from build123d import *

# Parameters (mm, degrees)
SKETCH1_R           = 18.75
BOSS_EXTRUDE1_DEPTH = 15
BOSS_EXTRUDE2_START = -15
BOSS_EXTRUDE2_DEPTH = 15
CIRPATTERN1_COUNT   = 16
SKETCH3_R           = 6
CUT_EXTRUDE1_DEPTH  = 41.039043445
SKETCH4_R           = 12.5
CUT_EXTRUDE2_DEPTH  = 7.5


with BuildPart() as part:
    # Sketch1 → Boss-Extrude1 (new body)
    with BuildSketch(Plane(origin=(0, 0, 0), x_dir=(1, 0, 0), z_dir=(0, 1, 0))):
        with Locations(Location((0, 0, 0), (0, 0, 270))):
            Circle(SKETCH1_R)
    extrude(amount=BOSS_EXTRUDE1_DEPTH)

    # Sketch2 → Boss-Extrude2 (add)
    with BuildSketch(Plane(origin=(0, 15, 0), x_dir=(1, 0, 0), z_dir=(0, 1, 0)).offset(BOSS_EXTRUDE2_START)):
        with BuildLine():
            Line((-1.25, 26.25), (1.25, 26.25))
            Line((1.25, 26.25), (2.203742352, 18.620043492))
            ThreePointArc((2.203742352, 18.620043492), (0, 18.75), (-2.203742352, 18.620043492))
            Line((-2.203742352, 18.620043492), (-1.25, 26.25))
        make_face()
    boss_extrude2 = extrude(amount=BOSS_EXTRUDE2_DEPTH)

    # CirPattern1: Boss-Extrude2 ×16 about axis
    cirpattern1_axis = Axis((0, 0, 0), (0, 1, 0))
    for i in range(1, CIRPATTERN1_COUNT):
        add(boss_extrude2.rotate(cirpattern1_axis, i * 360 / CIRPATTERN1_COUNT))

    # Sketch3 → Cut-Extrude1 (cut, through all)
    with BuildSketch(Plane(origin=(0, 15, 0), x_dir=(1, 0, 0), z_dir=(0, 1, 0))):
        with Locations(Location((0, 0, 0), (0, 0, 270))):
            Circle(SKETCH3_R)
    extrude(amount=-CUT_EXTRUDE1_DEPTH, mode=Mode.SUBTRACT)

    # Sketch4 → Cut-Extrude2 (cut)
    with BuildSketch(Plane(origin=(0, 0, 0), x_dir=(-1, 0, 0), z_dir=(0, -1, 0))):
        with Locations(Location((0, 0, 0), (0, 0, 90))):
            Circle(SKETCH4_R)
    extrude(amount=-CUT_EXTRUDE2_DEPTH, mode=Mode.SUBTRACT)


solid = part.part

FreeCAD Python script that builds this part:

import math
import FreeCAD as App
import Part
import Sketcher

doc = App.newDocument("Part")
body = doc.addObject("PartDesign::Body", "Body")

sketch1 = doc.addObject("Sketcher::SketchObject", "Sketch")
body.addObject(sketch1)
sketch1.AttachmentSupport = (doc.XZ_Plane, [""])
sketch1.MapMode = "FlatFace"
sketch1.addGeometry(Part.Circle(App.Vector(0, 0, 0), App.Vector(0, 0, 1), 19), False)
sketch1.addConstraint([
    Sketcher.Constraint("Coincident", 0, 3, -1, 1),
    Sketcher.Constraint("Diameter", 0, 37.5),
])
pad1 = doc.addObject("PartDesign::Pad", "Pad")
body.addObject(pad1)
pad1.Profile = sketch1
pad1.Length = 15
pad1.Reversed = True

sketch2 = doc.addObject("Sketcher::SketchObject", "Sketch001")
body.addObject(sketch2)
sketch2.AttachmentSupport = (doc.XZ_Plane, [""])
sketch2.MapMode = "FlatFace"
sketch2.addGeometry([
    Part.LineSegment(App.Vector(1.2, -26.2, 0), App.Vector(-1.2, -26.2, 0)),
    Part.LineSegment(App.Vector(-1.2, -26.2, 0), App.Vector(-2.2, -18.6, 0)),
    Part.ArcOfCircle(Part.Circle(App.Vector(0, 0, 0), App.Vector(0, 0, 1), 18.7), math.radians(-96.75), math.radians(-83.25)),
    Part.LineSegment(App.Vector(2.2, -18.6, 0), App.Vector(1.2, -26.2, 0)),
], False)
sketch2.addConstraint([
    Sketcher.Constraint("Coincident", 0, 2, 1, 1),
    Sketcher.Constraint("Coincident", 1, 2, 2, 1),
    Sketcher.Constraint("Coincident", 2, 2, 3, 1),
    Sketcher.Constraint("Coincident", 3, 2, 0, 1),
    Sketcher.Constraint("Horizontal", 0),
    Sketcher.Constraint("Coincident", 2, 3, -1, 1),
    Sketcher.Constraint("Horizontal", 1, 2, 2, 2),
    Sketcher.Constraint("Equal", 1, 3),
    Sketcher.Constraint("Radius", 2, 18.75),
    Sketcher.Constraint("DistanceX", 0, 2, 0, 1, 2.5),
    Sketcher.Constraint("DistanceY", 0, 2, -1, 1, 26.25),
    Sketcher.Constraint("Distance", 1, 7.689334),
])
pad2 = doc.addObject("PartDesign::Pad", "Pad001")
body.addObject(pad2)
pad2.Profile = sketch2
pad2.Length = 15
pad2.Reversed = True
doc.recompute()

polarpattern = doc.addObject("PartDesign::PolarPattern", "PolarPattern")
body.addObject(polarpattern)
polarpattern.Originals = [pad2]
polarpattern.Axis = (doc.Y_Axis, [""])
polarpattern.Angle = 360
polarpattern.Occurrences = 16
body.Tip = polarpattern

sketch3 = doc.addObject("Sketcher::SketchObject", "Sketch002")
body.addObject(sketch3)
sketch3.AttachmentSupport = (doc.XZ_Plane, [""])
sketch3.MapMode = "FlatFace"
sketch3.AttachmentOffset = App.Placement(App.Vector(0, 0, -15), App.Rotation())
sketch3.addGeometry(Part.Circle(App.Vector(0, 0, 0), App.Vector(0, 0, 1), 6), False)
sketch3.addConstraint([
    Sketcher.Constraint("Coincident", 0, 3, -1, 1),
    Sketcher.Constraint("Diameter", 0, 12.0),
])
pocket1 = doc.addObject("PartDesign::Pocket", "Pocket")
body.addObject(pocket1)
pocket1.Profile = sketch3
pocket1.Type = "ThroughAll"
pocket1.Reversed = True

sketch4 = doc.addObject("Sketcher::SketchObject", "Sketch003")
body.addObject(sketch4)
sketch4.AttachmentSupport = (doc.XZ_Plane, [""])
sketch4.MapMode = "FlatFace"
sketch4.addGeometry(Part.Circle(App.Vector(0, 0, 0), App.Vector(0, 0, 1), 12), False)
sketch4.addConstraint([
    Sketcher.Constraint("Coincident", 0, 3, -1, 1),
    Sketcher.Constraint("Diameter", 0, 25.0),
])
pocket2 = doc.addObject("PartDesign::Pocket", "Pocket001")
body.addObject(pocket2)
pocket2.Profile = sketch4
pocket2.Length = 7.5

doc.recompute()
